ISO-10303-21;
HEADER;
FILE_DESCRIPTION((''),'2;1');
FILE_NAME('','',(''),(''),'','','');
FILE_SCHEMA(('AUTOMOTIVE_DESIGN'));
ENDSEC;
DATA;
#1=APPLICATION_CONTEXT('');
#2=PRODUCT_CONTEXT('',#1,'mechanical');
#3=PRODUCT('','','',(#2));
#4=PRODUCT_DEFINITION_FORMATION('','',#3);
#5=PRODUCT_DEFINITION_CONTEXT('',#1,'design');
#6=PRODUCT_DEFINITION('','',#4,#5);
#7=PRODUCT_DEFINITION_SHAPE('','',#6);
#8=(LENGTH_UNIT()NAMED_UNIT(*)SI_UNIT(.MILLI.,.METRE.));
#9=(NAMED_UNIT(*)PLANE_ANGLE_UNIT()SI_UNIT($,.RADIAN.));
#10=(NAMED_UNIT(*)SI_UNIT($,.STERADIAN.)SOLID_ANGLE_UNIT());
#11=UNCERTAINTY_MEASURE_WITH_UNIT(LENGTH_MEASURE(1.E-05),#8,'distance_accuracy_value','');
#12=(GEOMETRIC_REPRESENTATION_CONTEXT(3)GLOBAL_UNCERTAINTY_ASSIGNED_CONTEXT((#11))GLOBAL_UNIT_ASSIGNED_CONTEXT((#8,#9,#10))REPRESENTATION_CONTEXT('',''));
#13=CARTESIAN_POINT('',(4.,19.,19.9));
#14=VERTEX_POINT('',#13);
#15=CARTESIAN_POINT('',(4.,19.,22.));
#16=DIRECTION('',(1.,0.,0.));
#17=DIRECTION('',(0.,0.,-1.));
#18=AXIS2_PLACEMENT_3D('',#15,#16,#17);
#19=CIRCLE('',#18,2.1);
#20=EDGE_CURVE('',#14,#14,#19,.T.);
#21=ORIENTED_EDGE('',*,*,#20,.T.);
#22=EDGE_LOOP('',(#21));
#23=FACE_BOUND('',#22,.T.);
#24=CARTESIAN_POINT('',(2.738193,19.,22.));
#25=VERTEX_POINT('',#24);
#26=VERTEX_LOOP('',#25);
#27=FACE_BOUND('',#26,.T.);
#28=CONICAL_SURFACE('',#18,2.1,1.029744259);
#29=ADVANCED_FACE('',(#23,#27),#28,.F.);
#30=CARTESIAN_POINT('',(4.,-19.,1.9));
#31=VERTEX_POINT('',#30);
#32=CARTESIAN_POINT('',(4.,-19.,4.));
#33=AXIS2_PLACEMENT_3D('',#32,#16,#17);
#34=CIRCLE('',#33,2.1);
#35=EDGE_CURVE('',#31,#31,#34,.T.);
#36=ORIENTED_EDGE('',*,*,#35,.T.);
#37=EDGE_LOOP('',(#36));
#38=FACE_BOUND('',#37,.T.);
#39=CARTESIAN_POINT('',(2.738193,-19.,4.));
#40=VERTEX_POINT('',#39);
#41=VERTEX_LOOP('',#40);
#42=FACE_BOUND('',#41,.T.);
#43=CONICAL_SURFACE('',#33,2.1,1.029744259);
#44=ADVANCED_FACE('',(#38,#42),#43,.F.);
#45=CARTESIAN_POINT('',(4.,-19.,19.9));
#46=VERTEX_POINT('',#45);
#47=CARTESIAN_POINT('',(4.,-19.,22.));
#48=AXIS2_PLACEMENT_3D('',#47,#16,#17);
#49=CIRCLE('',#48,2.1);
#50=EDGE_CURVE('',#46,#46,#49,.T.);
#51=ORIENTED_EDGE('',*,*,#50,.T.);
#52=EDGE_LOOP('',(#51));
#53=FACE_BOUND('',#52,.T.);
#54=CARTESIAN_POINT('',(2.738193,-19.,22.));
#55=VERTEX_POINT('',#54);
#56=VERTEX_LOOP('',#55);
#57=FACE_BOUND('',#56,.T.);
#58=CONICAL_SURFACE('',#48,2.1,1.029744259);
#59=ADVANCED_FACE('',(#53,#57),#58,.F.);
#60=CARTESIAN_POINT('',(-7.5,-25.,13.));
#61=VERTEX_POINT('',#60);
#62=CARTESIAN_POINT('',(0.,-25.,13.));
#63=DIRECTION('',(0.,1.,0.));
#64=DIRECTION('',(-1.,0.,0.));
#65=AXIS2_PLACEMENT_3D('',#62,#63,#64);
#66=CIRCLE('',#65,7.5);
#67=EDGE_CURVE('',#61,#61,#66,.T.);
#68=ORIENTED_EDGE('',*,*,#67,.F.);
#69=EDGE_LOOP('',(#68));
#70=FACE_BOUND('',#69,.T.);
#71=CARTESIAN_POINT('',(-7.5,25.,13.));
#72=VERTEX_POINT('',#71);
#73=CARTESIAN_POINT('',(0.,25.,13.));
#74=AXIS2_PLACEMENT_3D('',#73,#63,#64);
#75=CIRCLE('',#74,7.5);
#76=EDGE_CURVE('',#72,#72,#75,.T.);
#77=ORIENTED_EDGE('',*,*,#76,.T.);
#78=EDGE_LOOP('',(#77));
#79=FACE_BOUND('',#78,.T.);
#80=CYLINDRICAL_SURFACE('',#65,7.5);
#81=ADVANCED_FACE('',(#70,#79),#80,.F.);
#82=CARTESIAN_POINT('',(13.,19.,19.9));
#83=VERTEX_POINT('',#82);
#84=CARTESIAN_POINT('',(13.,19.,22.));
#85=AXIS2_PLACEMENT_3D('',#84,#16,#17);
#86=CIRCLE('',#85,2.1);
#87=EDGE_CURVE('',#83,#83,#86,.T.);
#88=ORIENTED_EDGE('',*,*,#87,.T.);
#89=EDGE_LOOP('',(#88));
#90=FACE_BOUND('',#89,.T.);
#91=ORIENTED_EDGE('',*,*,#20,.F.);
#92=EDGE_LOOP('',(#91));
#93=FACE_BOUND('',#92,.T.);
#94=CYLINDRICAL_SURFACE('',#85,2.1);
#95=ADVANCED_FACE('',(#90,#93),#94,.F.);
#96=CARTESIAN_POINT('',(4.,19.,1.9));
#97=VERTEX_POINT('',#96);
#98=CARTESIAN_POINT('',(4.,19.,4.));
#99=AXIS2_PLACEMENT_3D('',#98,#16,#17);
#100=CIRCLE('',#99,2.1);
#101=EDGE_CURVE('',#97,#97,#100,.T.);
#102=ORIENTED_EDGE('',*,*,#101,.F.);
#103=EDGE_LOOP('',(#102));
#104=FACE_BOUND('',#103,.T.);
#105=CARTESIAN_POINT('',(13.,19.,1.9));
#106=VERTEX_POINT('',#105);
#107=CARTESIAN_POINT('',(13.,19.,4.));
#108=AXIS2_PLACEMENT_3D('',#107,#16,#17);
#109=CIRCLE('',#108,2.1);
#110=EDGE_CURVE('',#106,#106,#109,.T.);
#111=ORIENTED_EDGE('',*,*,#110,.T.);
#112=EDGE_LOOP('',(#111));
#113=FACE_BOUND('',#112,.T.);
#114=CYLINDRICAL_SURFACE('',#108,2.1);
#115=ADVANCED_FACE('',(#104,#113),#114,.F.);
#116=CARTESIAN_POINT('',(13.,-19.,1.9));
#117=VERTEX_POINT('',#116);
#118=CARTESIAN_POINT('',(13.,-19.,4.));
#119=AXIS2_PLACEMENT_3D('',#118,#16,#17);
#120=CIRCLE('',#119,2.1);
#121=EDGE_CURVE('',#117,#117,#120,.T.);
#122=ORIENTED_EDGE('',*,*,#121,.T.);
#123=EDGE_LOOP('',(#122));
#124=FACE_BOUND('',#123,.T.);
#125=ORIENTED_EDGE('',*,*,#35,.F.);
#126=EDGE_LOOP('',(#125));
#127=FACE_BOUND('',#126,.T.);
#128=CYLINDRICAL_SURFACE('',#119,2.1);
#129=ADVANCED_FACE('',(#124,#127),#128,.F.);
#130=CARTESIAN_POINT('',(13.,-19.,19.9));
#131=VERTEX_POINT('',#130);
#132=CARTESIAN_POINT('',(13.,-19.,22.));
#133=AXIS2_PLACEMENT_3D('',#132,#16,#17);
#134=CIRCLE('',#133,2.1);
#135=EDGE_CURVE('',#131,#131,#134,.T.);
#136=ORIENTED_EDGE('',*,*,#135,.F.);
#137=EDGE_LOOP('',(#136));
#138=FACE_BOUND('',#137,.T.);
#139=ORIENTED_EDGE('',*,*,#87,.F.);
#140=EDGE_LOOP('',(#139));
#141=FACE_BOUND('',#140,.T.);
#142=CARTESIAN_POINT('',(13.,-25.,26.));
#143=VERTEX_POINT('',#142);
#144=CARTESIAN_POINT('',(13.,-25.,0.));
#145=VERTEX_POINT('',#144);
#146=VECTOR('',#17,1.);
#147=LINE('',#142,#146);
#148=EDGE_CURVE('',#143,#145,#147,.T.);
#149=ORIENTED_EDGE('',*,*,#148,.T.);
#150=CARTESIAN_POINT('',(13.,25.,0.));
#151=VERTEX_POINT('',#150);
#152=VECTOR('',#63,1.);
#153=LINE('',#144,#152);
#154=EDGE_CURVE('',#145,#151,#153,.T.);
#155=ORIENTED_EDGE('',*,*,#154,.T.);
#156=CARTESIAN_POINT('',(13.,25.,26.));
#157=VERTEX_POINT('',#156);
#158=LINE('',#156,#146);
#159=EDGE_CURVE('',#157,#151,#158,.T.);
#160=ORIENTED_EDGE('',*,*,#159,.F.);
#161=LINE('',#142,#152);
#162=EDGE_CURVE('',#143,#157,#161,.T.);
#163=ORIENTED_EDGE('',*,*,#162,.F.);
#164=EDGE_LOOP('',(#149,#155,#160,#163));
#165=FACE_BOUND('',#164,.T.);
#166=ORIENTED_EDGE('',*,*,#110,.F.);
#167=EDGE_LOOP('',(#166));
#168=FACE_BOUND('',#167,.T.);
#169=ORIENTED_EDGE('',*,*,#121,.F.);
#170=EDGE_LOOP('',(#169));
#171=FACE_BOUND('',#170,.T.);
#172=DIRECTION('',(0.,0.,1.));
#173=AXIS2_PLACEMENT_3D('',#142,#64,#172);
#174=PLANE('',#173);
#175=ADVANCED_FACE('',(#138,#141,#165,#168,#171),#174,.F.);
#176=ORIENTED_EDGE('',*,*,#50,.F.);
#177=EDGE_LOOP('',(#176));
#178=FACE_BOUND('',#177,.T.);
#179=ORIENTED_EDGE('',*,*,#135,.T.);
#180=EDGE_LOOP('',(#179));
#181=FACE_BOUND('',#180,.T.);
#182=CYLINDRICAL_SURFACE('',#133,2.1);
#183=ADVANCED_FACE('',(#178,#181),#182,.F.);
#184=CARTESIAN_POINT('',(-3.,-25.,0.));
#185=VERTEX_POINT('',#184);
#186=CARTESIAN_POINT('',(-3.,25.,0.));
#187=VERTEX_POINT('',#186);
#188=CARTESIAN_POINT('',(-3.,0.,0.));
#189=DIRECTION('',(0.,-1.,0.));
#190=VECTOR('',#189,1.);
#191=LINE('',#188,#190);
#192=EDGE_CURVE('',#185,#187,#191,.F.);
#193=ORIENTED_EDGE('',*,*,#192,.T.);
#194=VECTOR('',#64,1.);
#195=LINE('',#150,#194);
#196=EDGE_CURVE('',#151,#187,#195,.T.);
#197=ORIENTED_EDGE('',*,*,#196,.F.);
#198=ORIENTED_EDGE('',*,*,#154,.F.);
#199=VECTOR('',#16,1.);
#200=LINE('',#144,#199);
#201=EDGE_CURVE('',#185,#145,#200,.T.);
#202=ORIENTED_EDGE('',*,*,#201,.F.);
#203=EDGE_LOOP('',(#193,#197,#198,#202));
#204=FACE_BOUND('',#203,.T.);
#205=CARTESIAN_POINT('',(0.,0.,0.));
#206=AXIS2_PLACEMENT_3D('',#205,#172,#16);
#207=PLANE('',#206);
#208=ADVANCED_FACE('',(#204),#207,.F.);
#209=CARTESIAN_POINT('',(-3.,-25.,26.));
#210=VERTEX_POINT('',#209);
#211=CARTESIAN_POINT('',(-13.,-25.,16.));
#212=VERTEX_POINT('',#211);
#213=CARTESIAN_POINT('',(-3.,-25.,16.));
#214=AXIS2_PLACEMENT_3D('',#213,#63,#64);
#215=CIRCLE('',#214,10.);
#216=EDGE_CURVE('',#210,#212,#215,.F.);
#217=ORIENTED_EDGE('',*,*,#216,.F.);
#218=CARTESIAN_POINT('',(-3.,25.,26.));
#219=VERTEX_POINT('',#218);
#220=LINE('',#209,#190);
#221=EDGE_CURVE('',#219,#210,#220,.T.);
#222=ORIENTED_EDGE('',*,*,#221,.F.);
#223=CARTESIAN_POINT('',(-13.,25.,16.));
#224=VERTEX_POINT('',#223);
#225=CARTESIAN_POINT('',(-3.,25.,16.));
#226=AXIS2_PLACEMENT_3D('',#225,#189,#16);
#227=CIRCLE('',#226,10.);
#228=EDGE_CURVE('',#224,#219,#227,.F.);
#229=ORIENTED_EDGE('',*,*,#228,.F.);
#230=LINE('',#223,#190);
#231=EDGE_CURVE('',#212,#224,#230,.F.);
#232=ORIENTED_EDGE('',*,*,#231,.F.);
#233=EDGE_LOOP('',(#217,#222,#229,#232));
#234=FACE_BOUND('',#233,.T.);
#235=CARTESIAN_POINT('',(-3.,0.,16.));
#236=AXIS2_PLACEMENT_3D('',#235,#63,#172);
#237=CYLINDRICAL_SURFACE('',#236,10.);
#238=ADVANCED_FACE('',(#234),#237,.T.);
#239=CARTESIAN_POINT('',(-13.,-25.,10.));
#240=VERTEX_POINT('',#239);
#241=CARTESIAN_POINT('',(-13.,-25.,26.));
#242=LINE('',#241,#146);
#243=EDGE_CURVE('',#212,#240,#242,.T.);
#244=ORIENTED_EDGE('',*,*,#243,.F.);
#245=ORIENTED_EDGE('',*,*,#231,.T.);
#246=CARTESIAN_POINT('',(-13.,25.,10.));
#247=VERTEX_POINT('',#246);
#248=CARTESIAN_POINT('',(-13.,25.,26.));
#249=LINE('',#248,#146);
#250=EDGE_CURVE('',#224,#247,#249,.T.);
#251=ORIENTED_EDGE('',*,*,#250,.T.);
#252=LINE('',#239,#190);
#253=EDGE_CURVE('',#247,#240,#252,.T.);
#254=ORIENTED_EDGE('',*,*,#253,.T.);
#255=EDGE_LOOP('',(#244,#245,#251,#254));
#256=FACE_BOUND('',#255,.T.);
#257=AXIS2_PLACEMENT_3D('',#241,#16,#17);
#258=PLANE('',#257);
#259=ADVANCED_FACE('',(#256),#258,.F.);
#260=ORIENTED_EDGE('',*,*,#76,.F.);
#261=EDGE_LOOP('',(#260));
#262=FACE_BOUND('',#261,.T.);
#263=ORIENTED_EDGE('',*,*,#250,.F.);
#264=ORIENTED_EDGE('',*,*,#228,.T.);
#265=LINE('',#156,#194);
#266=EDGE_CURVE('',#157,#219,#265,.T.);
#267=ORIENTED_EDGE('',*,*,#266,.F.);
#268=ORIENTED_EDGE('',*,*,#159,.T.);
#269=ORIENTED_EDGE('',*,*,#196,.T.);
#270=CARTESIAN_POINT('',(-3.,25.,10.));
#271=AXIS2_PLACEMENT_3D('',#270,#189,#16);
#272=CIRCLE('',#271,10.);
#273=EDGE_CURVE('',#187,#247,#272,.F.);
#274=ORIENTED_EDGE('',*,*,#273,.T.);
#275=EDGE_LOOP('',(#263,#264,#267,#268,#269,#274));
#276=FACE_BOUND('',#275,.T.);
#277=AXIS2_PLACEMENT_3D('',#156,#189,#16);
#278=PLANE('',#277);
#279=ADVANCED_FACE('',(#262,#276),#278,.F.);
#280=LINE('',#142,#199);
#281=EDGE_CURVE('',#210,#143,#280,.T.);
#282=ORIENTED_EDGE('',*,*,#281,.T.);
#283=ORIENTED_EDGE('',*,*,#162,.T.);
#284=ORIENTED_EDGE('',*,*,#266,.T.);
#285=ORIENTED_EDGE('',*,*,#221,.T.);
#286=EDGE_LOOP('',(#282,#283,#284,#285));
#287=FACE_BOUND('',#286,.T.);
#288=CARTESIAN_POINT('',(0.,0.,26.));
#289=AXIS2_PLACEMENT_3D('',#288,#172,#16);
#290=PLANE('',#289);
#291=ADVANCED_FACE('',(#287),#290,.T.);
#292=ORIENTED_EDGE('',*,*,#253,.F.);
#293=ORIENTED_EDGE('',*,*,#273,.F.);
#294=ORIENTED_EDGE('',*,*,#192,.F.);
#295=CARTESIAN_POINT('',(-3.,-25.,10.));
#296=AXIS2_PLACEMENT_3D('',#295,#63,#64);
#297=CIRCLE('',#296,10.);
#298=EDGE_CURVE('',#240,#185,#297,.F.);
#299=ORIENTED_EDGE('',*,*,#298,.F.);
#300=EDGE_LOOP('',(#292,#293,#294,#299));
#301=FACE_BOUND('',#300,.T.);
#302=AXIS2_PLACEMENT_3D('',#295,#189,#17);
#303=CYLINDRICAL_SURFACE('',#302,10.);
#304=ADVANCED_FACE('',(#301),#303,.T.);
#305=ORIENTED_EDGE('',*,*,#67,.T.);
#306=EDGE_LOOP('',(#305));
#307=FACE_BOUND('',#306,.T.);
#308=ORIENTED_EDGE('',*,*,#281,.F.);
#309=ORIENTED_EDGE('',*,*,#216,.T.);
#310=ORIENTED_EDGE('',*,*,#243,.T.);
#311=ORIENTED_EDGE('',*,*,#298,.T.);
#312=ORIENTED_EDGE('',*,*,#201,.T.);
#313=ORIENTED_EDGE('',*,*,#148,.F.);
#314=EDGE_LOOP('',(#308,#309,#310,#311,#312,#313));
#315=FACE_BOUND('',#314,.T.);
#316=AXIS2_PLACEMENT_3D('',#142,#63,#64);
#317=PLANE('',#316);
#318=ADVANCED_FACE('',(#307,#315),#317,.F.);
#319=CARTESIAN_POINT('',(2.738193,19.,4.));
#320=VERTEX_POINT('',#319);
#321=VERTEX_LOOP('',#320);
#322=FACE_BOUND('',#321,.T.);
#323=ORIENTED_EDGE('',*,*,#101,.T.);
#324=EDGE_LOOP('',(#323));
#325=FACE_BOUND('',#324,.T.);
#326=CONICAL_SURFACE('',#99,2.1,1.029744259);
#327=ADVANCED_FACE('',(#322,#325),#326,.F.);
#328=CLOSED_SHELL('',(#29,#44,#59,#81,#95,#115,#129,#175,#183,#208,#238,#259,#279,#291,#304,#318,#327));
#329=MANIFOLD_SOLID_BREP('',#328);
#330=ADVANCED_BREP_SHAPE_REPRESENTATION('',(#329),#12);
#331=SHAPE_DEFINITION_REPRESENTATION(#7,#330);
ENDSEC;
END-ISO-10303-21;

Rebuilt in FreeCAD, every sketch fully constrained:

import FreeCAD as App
import Part
import Sketcher


def edges_at(feature, points):
    """Names of the edges that pass closest to the given points."""
    edges = feature.Shape.Edges
    near = lambda p: min(range(len(edges)), key=lambda i: edges[i].distToShape(Part.Vertex(*p))[0])
    return sorted({f"Edge{near(p) + 1}" for p in points})


def add_polygon(sketch, points):
    """Adds a closed chain of lines whose ends are joined by coincident constraints."""
    first, n = sketch.GeometryCount, len(points)
    for a, b in zip(points, points[1:] + points[:1]):
        sketch.addGeometry(Part.LineSegment(App.Vector(*a, 0), App.Vector(*b, 0)), False)
    for i in range(n):
        sketch.addConstraint(Sketcher.Constraint("Coincident", first + i, 2, first + (i + 1) % n, 1))

doc = App.newDocument("Part")
body = doc.addObject("PartDesign::Body", "Body")

sketch1 = body.newObject("Sketcher::SketchObject", "Sketch")
sketch1.AttachmentSupport = (doc.getObject("XY_Plane"), [""])
sketch1.MapMode = "FlatFace"
add_polygon(sketch1, [(-13, 25), (-13, -25), (13, -25), (13, 25)])
sketch1.addConstraint(Sketcher.Constraint("Vertical", 0))
sketch1.addConstraint(Sketcher.Constraint("Horizontal", 1))
sketch1.addConstraint(Sketcher.Constraint("Vertical", 2))
sketch1.addConstraint(Sketcher.Constraint("Horizontal", 3))
sketch1.addConstraint(Sketcher.Constraint("Symmetric", 0, 2, 2, 2, -1, 1))
sketch1.addConstraint(Sketcher.Constraint("DistanceX", 1, 1, 1, 2, 26.0))
sketch1.addConstraint(Sketcher.Constraint("DistanceY", 0, 2, 0, 1, 50.0))
pad1 = body.newObject("PartDesign::Pad", "Pad")
pad1.Profile = sketch1
pad1.Length = 26
doc.recompute()

fillet = body.newObject("PartDesign::Fillet", "Fillet")
fillet.Base = (pad1, edges_at(pad1, [(-13, 0, 26), (-13, 0, 0)]))
fillet.Radius = 10

sketch2 = body.newObject("Sketcher::SketchObject", "Sketch001")
sketch2.AttachmentSupport = (doc.getObject("XZ_Plane"), [""])
sketch2.MapMode = "FlatFace"
sketch2.AttachmentOffset = App.Placement(App.Vector(0, 0, -25), App.Rotation())
sketch2.addGeometry(Part.Circle(App.Vector(0, 13, 0), App.Vector(0, 0, 1), 8), False)
sketch2.addConstraint(Sketcher.Constraint("PointOnObject", 0, 3, -2))
sketch2.addConstraint(Sketcher.Constraint("Diameter", 0, 15.0))
sketch2.addConstraint(Sketcher.Constraint("DistanceY", -1, 1, 0, 3, 13.0))
pocket1 = body.newObject("PartDesign::Pocket", "Pocket")
pocket1.Profile = sketch2
pocket1.Type = "ThroughAll"
pocket1.Reversed = True

sketch3 = body.newObject("Sketcher::SketchObject", "Sketch002")
sketch3.AttachmentSupport = (doc.getObject("YZ_Plane"), [""])
sketch3.MapMode = "FlatFace"
sketch3.AttachmentOffset = App.Placement(App.Vector(0, 0, 13), App.Rotation())
sketch3.addGeometry(Part.Circle(App.Vector(19, 22, 0), App.Vector(0, 0, 1), 2.1), False)
sketch3.addGeometry(Part.Circle(App.Vector(19, 4, 0), App.Vector(0, 0, 1), 2.1), False)
sketch3.addGeometry(Part.Circle(App.Vector(-19, 22, 0), App.Vector(0, 0, 1), 2.1), False)
sketch3.addGeometry(Part.Circle(App.Vector(-19, 4, 0), App.Vector(0, 0, 1), 2.1), False)
sketch3.addConstraint(Sketcher.Constraint("Equal", 0, 1))
sketch3.addConstraint(Sketcher.Constraint("Equal", 1, 2))
sketch3.addConstraint(Sketcher.Constraint("Equal", 2, 3))
sketch3.addConstraint(Sketcher.Constraint("Symmetric", 0, 3, 2, 3, -2))
sketch3.addConstraint(Sketcher.Constraint("Symmetric", 1, 3, 3, 3, -2))
sketch3.addConstraint(Sketcher.Constraint("Vertical", 0, 3, 1, 3))
sketch3.addConstraint(Sketcher.Constraint("Diameter", 0, 4.2))
sketch3.addConstraint(Sketcher.Constraint("DistanceX", -1, 1, 0, 3, 19.0))
sketch3.addConstraint(Sketcher.Constraint("DistanceY", -1, 1, 0, 3, 22.0))
sketch3.addConstraint(Sketcher.Constraint("DistanceY", -1, 1, 1, 3, 4.0))
doc.recompute()
hole = body.newObject("PartDesign::Hole", "Hole")
hole.Profile = sketch3
hole.ThreadType = "None"
hole.Diameter = 4.2
hole.DepthType = "Dimension"
hole.Depth = 9
hole.DrillPoint = "Angled"
hole.DrillPointAngle = 118

doc.recompute()
